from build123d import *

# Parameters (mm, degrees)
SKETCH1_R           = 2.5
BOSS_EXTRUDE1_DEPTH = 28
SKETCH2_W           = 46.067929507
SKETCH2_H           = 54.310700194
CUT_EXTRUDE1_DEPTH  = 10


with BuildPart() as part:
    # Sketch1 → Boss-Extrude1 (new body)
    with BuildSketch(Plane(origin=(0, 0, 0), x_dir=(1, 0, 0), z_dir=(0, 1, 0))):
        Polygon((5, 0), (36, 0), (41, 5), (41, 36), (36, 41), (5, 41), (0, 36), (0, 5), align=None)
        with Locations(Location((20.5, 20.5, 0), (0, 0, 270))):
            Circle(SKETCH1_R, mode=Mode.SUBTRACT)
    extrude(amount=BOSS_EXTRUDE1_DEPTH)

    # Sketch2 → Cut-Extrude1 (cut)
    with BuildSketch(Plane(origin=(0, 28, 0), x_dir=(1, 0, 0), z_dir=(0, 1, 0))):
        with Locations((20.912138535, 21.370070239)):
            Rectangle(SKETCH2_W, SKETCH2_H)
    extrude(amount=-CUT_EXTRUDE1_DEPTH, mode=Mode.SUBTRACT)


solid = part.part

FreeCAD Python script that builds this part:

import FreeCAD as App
import Part
import Sketcher
Q = App.Units.Quantity


def add_polygon(sketch, points):
    """Adds a closed chain of lines whose ends are joined by coincident constraints."""
    first, n = sketch.GeometryCount, len(points)
    for a, b in zip(points, points[1:] + points[:1]):
        sketch.addGeometry(Part.LineSegment(App.Vector(*a, 0), App.Vector(*b, 0)), False)
    for i in range(n):
        sketch.addConstraint(Sketcher.Constraint("Coincident", first + i, 2, first + (i + 1) % n, 1))

doc = App.newDocument("Part")
body = doc.addObject("PartDesign::Body", "Body")

# Sketch on XZ plane
sketch1 = doc.addObject("Sketcher::SketchObject", "Sketch")
body.addObject(sketch1)
sketch1.AttachmentSupport = (doc.XZ_Plane, [""])
sketch1.MapMode = "FlatFace"
add_polygon(sketch1, [(5, 0), (36, 0), (41, -5), (41, -36), (36, -41), (5, -41), (0, -36), (0, -5)])  # lines 0-7
sketch1.addGeometry(Part.Circle(App.Vector(20.5, -20.5, 0), App.Vector(0, 0, 1), 2.5), False)  # 8
sketch1.addConstraint([
    Sketcher.Constraint("Horizontal", 0),
    Sketcher.Constraint("Vertical", 2),
    Sketcher.Constraint("Horizontal", 4),
    Sketcher.Constraint("Vertical", 6),
    Sketcher.Constraint("PointOnObject", 0, 2, -1),
    Sketcher.Constraint("PointOnObject", 5, 2, -2),
    Sketcher.Constraint("Perpendicular", 1, 3),
    Sketcher.Constraint("Perpendicular", 3, 5),
    Sketcher.Constraint("Perpendicular", 5, 7),
    Sketcher.Constraint("Horizontal", 2, 2, 5, 2),
    Sketcher.Constraint("Horizontal", 1, 2, 6, 2),
    Sketcher.Constraint("Vertical", 0, 2, 3, 2),
    Sketcher.Constraint("Vertical", 4, 2, 7, 2),
    Sketcher.Constraint("Equal", 4, 2),
    Sketcher.Constraint("Diameter", 8, Q("5 mm")),
    Sketcher.Constraint("DistanceX", 0, 1, 0, 2, Q("31 mm")),
    Sketcher.Constraint("DistanceX", -1, 1, 0, 2, Q("36 mm")),
    Sketcher.Constraint("DistanceX", -1, 1, 8, 3, Q("20.5 mm")),
    Sketcher.Constraint("DistanceY", 8, 3, -1, 1, Q("20.5 mm")),
])
pad1 = doc.addObject("PartDesign::Pad", "Pad")
body.addObject(pad1)
pad1.Profile = sketch1
pad1.Length = 28
pad1.Reversed = True

# Sketch on XZ plane
sketch2 = doc.addObject("Sketcher::SketchObject", "Sketch001")
body.addObject(sketch2)
sketch2.AttachmentSupport = (doc.XZ_Plane, [""])
sketch2.MapMode = "FlatFace"
sketch2.AttachmentOffset = App.Placement(App.Vector(0, 0, -28), App.Rotation())
add_polygon(sketch2, [(-2, -49), (-2, 6), (44, 6), (44, -49)])  # lines 0-3
sketch2.addConstraint([
    Sketcher.Constraint("Vertical", 0),
    Sketcher.Constraint("Horizontal", 1),
    Sketcher.Constraint("Vertical", 2),
    Sketcher.Constraint("Horizontal", 3),
    Sketcher.Constraint("DistanceY", 0, 1, 0, 2, Q("54.3107 mm")),
    Sketcher.Constraint("DistanceX", 1, 1, 1, 2, Q("46.06793 mm")),
    Sketcher.Constraint("DistanceY", -1, 1, 0, 2, Q("5.78528 mm")),
    Sketcher.Constraint("DistanceX", 0, 2, -1, 1, Q("2.121826 mm")),
])
pocket1 = doc.addObject("PartDesign::Pocket", "Pocket")
body.addObject(pocket1)
pocket1.Profile = sketch2
pocket1.Length = 10
pocket1.Reversed = True

doc.recompute()
